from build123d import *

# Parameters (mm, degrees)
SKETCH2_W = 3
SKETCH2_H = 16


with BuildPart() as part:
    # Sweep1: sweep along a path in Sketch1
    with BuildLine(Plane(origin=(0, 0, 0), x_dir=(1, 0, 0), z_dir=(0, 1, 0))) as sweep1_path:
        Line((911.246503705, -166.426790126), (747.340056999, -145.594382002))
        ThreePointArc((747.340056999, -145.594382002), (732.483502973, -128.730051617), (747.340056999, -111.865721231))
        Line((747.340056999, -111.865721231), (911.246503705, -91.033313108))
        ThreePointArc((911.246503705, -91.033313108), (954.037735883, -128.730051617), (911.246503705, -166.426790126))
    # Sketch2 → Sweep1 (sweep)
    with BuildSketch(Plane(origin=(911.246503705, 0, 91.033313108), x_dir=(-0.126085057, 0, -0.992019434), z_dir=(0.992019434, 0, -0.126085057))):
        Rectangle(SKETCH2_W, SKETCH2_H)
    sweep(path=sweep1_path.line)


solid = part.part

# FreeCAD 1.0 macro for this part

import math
import FreeCAD as App
import Part
import Sketcher
from FreeCAD import Vector
Q = App.Units.Quantity


def add_polygon(sketch, points):
    """Adds a closed chain of lines whose ends are joined by coincident constraints."""
    first, n = sketch.GeometryCount, len(points)
    for a, b in zip(points, points[1:] + points[:1]):
        sketch.addGeometry(Part.LineSegment(App.Vector(*a, 0), App.Vector(*b, 0)), False)
    for i in range(n):
        sketch.addConstraint(Sketcher.Constraint("Coincident", first + i, 2, first + (i + 1) % n, 1))

doc = App.newDocument("Part")
body = doc.addObject("PartDesign::Body", "Body")

sketch1 = body.newObject("Sketcher::SketchObject", "Sketch")
sketch1.Placement = App.Placement(Vector(911.246504, 0, 91.033313), App.Rotation(Vector(-0.126085057, 0, -0.992019434), Vector(0, 0.999999999, 0), Vector(0.992019434, 0, -0.126085057), "ZXY"))
add_polygon(sketch1, [(-1.5, 8), (-1.5, -8), (1.5, -8), (1.5, 8)])
sketch1.addConstraint(Sketcher.Constraint("Vertical", 0))
sketch1.addConstraint(Sketcher.Constraint("Horizontal", 1))
sketch1.addConstraint(Sketcher.Constraint("Vertical", 2))
sketch1.addConstraint(Sketcher.Constraint("Horizontal", 3))
sketch1.addConstraint(Sketcher.Constraint("Symmetric", 0, 2, 2, 2, -1, 1))
sketch1.addConstraint(Sketcher.Constraint("DistanceX", 1, 1, 1, 2, Q("3 mm")))
sketch1.addConstraint(Sketcher.Constraint("DistanceY", 0, 2, 0, 1, Q("16 mm")))

sketch2 = body.newObject("Sketcher::SketchObject", "Sketch001")
sketch2.AttachmentSupport = (doc.getObject("XZ_Plane"), [""])
sketch2.MapMode = "FlatFace"
sketch2.addGeometry(Part.LineSegment(Vector(911.246504, 166.42679, 0), Vector(747.340057, 145.594382, 0)), False)
sketch2.addGeometry(Part.ArcOfCircle(Part.Circle(Vector(749.483503, 128.730052, 0), Vector(0, 0, 1), 17), math.radians(97.243421), math.radians(262.756579)), False)
sketch2.addGeometry(Part.LineSegment(Vector(747.340057, 111.865721, 0), Vector(911.246504, 91.033313, 0)), False)
sketch2.addGeometry(Part.ArcOfCircle(Part.Circle(Vector(916.037736, 128.730052, 0), Vector(0, 0, 1), 38), math.radians(-97.243421), math.radians(97.243421)), False)
sketch2.addConstraint(Sketcher.Constraint("Tangent", 0, 2, 1, 1))
sketch2.addConstraint(Sketcher.Constraint("Tangent", 1, 2, 2, 1))
sketch2.addConstraint(Sketcher.Constraint("Tangent", 2, 2, 3, 1))
sketch2.addConstraint(Sketcher.Constraint("Tangent", 3, 2, 0, 1))
sketch2.addConstraint(Sketcher.Constraint("Horizontal", 1, 3, 3, 3))
sketch2.addConstraint(Sketcher.Constraint("Radius", 1, Q("17 mm")))
sketch2.addConstraint(Sketcher.Constraint("Radius", 3, Q("38 mm")))
sketch2.addConstraint(Sketcher.Constraint("DistanceX", 1, 3, 2, 2, Q("161.763001 mm")))
sketch2.addConstraint(Sketcher.Constraint("DistanceY", -1, 1, 1, 3, Q("128.730052 mm")))
sketch2.addConstraint(Sketcher.Constraint("DistanceX", -1, 1, 1, 3, Q("749.483503 mm")))
doc.recompute()

additivepipe = body.newObject("PartDesign::AdditivePipe", "AdditivePipe")
additivepipe.Profile = sketch1
additivepipe.Spine = (sketch2, ["Edge1", "Edge2", "Edge3", "Edge4"])

doc.recompute()
